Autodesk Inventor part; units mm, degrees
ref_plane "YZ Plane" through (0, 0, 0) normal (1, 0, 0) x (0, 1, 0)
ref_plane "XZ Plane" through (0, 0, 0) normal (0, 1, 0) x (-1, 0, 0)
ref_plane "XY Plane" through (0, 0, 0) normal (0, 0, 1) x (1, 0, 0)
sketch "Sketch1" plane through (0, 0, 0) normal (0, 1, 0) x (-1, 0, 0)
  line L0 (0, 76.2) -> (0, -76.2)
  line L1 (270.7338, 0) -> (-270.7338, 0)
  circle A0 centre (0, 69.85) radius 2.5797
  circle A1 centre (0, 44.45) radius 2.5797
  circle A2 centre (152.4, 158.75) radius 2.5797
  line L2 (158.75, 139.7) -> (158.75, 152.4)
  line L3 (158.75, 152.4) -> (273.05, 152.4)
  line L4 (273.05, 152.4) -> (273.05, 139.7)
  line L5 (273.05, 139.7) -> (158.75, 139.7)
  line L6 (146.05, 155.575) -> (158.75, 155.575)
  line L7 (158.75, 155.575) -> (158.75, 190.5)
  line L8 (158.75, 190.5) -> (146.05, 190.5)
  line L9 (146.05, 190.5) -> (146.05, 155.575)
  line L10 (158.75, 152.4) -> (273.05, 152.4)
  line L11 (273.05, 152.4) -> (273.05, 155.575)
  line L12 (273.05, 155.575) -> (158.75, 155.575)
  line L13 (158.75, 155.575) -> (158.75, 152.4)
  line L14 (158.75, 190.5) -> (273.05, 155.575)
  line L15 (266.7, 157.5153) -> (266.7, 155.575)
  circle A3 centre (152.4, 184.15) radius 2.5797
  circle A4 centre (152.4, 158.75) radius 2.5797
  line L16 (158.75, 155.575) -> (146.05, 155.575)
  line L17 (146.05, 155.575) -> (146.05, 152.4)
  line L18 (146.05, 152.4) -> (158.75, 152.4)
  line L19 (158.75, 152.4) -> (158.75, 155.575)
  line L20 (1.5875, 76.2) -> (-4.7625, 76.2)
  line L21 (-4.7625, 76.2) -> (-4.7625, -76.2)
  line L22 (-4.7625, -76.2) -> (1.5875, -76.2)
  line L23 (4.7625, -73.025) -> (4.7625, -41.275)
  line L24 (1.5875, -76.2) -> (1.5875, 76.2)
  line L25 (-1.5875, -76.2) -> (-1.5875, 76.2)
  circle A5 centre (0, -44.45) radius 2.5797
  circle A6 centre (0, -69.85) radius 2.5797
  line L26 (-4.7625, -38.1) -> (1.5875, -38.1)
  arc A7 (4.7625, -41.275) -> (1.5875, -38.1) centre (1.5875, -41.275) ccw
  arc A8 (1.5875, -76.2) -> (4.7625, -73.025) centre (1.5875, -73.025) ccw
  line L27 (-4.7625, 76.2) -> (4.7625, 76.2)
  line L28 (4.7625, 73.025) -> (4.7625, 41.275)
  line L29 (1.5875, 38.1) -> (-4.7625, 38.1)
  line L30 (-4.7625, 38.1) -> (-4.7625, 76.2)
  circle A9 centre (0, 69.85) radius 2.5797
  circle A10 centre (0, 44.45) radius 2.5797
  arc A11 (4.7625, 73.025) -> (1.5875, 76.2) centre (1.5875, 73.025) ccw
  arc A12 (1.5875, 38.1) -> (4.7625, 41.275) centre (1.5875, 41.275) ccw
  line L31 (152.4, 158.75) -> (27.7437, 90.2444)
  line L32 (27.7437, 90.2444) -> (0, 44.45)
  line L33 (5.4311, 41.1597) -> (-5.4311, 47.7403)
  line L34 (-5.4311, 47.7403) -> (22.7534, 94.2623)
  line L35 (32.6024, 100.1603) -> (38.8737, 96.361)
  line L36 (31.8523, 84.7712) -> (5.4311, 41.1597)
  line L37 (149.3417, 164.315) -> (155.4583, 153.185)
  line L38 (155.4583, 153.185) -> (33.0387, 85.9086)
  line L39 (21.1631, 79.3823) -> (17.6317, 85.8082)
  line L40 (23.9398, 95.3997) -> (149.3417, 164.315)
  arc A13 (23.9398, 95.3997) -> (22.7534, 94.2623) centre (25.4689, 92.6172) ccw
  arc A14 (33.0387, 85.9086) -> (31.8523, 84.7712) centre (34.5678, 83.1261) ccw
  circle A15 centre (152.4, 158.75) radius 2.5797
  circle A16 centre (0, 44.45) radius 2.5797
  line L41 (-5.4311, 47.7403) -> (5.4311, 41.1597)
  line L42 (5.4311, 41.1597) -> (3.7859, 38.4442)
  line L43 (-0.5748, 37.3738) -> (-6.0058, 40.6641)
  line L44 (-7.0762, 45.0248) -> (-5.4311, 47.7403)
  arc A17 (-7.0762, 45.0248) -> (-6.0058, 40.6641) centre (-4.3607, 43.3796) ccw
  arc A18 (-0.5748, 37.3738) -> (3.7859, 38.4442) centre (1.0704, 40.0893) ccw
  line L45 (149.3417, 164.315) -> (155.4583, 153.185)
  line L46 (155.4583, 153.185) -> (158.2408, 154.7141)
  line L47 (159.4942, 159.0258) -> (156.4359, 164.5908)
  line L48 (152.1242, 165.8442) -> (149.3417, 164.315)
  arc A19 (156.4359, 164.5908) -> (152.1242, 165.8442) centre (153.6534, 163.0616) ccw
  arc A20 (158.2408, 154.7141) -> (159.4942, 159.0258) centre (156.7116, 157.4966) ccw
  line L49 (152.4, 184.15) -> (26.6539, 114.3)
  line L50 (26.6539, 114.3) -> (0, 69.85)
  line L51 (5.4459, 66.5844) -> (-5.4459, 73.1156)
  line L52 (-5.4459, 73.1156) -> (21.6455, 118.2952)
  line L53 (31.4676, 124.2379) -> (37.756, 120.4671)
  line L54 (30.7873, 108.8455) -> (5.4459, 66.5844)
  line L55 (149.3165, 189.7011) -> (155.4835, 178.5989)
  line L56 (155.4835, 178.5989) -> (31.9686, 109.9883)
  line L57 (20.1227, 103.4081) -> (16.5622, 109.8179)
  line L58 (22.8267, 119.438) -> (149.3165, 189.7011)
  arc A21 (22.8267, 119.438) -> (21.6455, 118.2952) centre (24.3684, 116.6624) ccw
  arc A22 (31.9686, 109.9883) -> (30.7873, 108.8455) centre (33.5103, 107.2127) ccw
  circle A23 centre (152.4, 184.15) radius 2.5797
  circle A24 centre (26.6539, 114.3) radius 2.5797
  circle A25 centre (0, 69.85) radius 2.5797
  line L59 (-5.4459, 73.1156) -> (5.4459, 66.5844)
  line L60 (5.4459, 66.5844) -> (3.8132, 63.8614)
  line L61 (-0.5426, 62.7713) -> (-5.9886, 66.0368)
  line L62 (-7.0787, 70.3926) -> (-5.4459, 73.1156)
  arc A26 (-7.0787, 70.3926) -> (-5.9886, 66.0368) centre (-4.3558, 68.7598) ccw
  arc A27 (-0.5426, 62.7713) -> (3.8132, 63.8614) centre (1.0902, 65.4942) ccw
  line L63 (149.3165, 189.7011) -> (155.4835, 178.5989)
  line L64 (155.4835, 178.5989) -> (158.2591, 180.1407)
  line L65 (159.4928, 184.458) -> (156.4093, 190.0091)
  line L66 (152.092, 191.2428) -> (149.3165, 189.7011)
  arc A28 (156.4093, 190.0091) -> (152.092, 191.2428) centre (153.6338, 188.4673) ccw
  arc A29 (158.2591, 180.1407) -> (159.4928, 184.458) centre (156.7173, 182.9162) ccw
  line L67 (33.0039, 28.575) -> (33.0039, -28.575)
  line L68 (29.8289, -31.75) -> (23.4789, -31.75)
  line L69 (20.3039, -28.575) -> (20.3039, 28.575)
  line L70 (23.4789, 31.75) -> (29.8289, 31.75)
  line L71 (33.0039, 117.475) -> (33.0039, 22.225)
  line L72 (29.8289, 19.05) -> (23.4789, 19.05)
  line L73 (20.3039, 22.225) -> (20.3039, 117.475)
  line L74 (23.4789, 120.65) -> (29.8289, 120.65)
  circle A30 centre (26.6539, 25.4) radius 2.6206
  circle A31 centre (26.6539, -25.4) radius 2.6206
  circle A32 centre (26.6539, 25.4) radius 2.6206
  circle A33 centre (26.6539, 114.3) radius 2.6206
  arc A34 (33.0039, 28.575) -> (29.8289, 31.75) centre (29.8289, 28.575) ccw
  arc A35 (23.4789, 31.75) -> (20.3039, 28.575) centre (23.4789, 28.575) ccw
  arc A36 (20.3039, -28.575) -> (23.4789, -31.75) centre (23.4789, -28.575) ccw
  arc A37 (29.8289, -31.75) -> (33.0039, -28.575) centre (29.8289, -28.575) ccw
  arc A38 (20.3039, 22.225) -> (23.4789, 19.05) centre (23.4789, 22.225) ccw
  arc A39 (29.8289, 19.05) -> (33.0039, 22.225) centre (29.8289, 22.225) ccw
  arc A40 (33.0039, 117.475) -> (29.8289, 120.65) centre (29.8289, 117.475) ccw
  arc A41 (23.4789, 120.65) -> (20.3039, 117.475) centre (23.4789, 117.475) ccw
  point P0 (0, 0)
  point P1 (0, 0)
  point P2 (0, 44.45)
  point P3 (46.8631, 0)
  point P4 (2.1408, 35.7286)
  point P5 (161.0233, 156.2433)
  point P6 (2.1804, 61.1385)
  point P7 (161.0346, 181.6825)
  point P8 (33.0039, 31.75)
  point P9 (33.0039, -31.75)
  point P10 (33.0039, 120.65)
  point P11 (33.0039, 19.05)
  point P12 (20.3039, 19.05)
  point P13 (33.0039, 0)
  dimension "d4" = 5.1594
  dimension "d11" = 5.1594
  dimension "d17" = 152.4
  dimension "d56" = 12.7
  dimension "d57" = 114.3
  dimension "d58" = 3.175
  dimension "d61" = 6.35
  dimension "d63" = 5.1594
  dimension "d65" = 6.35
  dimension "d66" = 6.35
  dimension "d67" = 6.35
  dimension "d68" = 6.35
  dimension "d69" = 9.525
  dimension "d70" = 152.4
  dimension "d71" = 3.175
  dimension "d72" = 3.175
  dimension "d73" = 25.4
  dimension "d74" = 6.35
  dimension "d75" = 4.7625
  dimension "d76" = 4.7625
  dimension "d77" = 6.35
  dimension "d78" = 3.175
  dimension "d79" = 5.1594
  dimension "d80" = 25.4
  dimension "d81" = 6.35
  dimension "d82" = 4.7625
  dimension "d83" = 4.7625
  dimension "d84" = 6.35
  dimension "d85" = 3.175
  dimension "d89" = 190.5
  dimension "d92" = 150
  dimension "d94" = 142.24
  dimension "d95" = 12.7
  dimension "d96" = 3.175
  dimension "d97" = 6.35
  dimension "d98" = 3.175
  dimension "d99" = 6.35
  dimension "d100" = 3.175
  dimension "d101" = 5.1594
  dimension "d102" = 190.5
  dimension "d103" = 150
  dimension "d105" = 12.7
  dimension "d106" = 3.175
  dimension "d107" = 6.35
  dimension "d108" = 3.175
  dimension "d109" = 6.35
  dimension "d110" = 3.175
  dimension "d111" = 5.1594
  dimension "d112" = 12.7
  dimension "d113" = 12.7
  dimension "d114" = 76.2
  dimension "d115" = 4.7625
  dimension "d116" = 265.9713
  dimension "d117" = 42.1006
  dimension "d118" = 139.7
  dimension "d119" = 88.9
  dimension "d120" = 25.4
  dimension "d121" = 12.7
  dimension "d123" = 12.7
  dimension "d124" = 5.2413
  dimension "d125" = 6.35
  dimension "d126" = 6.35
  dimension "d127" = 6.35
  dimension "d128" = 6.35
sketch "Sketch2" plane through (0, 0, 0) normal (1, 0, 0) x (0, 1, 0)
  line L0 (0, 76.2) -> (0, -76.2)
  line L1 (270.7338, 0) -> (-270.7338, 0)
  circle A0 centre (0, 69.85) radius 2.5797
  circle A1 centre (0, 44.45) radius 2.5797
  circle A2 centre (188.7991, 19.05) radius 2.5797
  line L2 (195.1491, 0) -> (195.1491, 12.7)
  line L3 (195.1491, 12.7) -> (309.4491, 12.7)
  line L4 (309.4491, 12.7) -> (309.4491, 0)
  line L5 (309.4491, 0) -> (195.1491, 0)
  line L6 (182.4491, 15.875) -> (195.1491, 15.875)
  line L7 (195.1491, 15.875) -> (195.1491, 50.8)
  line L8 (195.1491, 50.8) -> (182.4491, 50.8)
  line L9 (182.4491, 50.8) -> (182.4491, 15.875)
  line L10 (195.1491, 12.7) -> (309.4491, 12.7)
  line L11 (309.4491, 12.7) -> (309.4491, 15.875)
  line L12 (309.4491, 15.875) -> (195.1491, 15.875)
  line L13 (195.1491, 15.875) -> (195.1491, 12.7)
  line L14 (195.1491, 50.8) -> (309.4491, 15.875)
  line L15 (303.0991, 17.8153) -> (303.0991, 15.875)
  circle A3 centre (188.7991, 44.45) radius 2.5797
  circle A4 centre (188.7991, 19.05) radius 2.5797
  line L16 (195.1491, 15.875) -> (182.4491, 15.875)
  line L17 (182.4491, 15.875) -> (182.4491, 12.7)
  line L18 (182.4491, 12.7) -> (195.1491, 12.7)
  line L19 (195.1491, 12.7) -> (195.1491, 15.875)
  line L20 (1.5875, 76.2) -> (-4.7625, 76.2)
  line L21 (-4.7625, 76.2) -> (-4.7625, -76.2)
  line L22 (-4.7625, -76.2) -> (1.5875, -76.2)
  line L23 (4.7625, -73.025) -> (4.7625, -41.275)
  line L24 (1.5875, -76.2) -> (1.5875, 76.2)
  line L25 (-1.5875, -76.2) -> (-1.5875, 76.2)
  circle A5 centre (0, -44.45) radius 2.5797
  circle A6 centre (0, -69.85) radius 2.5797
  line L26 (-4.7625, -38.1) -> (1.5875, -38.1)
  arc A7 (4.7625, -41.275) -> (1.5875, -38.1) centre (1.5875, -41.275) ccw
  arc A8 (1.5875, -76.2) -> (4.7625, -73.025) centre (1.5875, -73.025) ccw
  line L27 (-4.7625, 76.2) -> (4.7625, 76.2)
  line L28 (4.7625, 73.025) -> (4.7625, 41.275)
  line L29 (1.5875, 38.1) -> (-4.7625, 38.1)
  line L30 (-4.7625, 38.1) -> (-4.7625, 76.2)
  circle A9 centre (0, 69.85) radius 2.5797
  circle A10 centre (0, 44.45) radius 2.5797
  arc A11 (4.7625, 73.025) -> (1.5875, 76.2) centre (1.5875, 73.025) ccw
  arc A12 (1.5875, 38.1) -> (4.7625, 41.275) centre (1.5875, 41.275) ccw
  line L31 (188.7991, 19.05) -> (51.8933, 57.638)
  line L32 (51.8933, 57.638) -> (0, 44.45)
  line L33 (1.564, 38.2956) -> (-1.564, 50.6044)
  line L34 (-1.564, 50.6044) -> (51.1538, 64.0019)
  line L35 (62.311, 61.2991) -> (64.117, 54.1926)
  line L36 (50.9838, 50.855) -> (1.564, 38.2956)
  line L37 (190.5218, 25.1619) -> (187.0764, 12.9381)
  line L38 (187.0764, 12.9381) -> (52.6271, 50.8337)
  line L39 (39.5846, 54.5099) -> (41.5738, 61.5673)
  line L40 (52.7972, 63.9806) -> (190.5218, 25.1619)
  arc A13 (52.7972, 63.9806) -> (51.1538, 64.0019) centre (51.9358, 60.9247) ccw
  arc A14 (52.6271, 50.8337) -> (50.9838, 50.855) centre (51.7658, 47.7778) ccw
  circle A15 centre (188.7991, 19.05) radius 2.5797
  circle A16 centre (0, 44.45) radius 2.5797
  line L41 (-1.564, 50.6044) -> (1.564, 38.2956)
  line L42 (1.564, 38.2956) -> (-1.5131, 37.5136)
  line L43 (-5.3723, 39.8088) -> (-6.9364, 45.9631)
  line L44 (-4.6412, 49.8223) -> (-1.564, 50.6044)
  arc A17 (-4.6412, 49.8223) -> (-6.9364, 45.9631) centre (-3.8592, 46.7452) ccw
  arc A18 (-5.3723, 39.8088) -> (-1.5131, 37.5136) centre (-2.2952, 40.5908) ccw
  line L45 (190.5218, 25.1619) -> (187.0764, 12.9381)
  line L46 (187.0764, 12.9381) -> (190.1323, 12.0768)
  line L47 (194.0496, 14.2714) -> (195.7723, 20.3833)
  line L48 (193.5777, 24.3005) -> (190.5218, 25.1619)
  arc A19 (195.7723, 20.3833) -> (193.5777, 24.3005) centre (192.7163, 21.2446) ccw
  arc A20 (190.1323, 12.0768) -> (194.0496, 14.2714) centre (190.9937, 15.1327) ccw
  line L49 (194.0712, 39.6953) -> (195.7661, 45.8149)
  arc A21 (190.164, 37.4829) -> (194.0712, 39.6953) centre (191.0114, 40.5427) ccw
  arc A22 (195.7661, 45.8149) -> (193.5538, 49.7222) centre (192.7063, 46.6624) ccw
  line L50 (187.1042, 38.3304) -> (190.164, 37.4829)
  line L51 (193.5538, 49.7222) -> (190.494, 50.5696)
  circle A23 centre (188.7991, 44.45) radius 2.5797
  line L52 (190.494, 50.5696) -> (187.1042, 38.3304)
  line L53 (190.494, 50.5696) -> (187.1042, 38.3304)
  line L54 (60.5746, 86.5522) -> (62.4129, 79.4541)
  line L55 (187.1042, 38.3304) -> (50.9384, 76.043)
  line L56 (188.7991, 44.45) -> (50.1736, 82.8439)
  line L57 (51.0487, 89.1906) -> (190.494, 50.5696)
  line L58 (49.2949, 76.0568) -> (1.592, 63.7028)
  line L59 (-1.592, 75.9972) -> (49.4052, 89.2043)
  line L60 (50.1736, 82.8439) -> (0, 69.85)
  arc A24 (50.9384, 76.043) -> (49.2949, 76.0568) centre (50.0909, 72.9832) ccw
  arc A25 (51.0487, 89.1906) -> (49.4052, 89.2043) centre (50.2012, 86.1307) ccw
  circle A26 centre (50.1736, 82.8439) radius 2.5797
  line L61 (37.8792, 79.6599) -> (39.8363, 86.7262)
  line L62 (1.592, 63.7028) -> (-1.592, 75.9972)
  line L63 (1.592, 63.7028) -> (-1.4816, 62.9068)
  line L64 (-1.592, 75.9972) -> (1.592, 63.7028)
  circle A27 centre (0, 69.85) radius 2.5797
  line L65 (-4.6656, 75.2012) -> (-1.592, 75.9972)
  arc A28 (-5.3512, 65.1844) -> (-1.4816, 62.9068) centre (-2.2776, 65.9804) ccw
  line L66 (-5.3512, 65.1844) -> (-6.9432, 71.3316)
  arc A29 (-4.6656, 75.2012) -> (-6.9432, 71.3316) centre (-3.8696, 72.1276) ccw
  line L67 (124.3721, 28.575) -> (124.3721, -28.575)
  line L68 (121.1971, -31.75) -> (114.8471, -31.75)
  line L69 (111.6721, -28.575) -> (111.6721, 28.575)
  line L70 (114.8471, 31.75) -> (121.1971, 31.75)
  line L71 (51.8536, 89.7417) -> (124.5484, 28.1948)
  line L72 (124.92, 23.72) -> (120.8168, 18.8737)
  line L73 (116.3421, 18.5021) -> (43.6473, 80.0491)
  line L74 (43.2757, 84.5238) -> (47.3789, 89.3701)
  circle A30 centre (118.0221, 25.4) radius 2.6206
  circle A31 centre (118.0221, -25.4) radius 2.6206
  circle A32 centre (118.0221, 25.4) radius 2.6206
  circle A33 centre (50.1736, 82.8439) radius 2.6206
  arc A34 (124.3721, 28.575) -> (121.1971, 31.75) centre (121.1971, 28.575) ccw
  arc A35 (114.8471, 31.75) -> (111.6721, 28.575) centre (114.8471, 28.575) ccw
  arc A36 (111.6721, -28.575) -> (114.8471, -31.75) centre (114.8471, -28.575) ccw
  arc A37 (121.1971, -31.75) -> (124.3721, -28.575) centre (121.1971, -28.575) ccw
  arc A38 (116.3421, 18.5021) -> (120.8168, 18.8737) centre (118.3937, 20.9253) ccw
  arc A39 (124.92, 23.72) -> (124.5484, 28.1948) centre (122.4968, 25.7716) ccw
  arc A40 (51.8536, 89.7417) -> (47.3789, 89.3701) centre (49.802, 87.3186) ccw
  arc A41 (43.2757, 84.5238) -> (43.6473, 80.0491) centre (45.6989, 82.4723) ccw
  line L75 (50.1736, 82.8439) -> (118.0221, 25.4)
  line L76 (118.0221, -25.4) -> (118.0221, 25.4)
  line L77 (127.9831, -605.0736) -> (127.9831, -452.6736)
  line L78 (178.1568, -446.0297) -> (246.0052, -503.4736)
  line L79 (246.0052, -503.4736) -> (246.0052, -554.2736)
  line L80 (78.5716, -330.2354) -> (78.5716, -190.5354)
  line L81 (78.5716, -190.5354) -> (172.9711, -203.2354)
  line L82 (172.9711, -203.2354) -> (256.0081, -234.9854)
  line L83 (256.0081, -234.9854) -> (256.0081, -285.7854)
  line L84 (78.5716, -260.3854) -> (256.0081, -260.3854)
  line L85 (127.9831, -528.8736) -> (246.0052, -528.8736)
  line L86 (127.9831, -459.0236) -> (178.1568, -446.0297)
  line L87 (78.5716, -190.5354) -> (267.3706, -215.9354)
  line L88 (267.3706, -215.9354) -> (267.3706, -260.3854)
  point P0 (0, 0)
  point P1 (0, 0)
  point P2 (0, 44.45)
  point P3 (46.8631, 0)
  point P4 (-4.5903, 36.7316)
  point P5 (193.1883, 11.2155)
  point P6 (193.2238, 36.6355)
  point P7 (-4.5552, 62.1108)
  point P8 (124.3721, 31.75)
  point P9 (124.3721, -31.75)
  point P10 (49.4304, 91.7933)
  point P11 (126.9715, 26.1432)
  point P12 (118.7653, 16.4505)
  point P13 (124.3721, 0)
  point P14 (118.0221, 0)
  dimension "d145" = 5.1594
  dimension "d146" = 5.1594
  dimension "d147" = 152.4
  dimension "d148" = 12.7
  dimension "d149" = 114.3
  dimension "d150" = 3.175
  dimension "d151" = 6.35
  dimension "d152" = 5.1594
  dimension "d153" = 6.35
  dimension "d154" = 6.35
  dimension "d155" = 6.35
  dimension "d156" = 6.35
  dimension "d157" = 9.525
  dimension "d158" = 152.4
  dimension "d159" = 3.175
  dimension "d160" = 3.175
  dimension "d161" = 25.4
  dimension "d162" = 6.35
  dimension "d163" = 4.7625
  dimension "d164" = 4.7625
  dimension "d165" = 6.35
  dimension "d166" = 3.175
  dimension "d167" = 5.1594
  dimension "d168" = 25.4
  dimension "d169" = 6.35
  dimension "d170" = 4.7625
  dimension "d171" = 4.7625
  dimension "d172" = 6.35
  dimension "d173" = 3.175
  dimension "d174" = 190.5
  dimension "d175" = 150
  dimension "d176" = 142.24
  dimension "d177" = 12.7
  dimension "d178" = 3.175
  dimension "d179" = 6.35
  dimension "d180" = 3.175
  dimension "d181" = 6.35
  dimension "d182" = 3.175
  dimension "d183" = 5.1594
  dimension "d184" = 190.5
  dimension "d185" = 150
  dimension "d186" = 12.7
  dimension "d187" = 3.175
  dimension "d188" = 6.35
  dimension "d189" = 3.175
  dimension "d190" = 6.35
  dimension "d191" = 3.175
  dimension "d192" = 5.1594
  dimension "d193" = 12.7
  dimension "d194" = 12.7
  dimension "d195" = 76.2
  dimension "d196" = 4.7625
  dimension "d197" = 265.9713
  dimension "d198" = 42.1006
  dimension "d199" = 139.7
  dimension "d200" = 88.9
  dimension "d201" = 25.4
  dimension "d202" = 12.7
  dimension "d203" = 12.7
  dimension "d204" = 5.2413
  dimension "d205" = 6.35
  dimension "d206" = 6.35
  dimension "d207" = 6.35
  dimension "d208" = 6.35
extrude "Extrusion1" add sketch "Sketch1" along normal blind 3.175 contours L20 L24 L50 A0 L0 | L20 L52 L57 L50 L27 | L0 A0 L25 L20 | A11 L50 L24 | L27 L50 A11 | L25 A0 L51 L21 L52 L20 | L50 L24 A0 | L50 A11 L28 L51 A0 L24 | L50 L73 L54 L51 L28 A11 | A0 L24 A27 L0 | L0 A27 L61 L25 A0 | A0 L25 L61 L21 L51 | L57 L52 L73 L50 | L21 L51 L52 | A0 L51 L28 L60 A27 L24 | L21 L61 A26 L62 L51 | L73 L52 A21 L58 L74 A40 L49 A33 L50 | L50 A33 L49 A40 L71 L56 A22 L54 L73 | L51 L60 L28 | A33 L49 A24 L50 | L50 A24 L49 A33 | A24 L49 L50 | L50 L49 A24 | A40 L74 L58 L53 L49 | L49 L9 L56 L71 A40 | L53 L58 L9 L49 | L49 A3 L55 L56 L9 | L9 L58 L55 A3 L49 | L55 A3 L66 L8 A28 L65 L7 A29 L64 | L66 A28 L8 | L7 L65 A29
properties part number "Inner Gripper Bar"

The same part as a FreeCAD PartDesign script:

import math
import FreeCAD as App
import Part
import Sketcher
Q = App.Units.Quantity

doc = App.newDocument("Part")
body = doc.addObject("PartDesign::Body", "Body")

sketch1 = body.newObject("Sketcher::SketchObject", "Sketch")
sketch1.AttachmentSupport = (doc.getObject("XZ_Plane"), [""])
sketch1.MapMode = "FlatFace"
sketch1.addGeometry([
    Part.LineSegment(App.Vector(5.4459, 73.1156, 0), App.Vector(7.0787, 70.3926, 0)),
    Part.ArcOfCircle(Part.Circle(App.Vector(4.3558, 68.7598, 0), App.Vector(0, 0, 1), 3.174936), math.radians(-59.051718), math.radians(30.94921)),
    Part.LineSegment(App.Vector(5.9886, 66.0368, 0), App.Vector(0.5426, 62.7713, 0)),
    Part.ArcOfCircle(Part.Circle(App.Vector(-1.0902, 65.4942, 0), App.Vector(0, 0, 1), 3.174936), math.radians(-149.051718), math.radians(-59.05079)),
    Part.LineSegment(App.Vector(-3.8132, 63.8614, 0), App.Vector(-5.4459, 66.5844, 0)),
    Part.LineSegment(App.Vector(-5.4459, 66.5844, 0), App.Vector(-30.7873, 108.8455, 0)),
    Part.ArcOfCircle(Part.Circle(App.Vector(-33.5103, 107.2127, 0), App.Vector(0, 0, 1), 3.175027), math.radians(30.948282), math.radians(60.950128)),
    Part.LineSegment(App.Vector(-31.9686, 109.9883, 0), App.Vector(-155.4835, 178.5989, 0)),
    Part.LineSegment(App.Vector(-155.4835, 178.5989, 0), App.Vector(-158.2591, 180.1407, 0)),
    Part.ArcOfCircle(Part.Circle(App.Vector(-156.7173, 182.9162, 0), App.Vector(0, 0, 1), 3.174988), math.radians(150.947675), math.radians(240.947675)),
    Part.LineSegment(App.Vector(-159.4928, 184.458, 0), App.Vector(-156.4093, 190.0091, 0)),
    Part.ArcOfCircle(Part.Circle(App.Vector(-153.6338, 188.4673, 0), App.Vector(0, 0, 1), 3.174988), math.radians(60.947675), math.radians(150.947675)),
    Part.LineSegment(App.Vector(-152.092, 191.2428, 0), App.Vector(-149.3165, 189.7011, 0)),
    Part.LineSegment(App.Vector(-149.3165, 189.7011, 0), App.Vector(-22.8267, 119.438, 0)),
    Part.ArcOfCircle(Part.Circle(App.Vector(-24.367604, 116.663474, 0), App.Vector(0, 0, 1), 3.173701), math.radians(30.939971), math.radians(60.95328)),
    Part.LineSegment(App.Vector(-21.6455, 118.2952, 0), App.Vector(5.4459, 73.1156, 0)),
    Part.Circle(App.Vector(0, 69.85, 0), App.Vector(0, 0, 1), 2.5797),
    Part.Circle(App.Vector(-152.4, 184.15, 0), App.Vector(0, 0, 1), 2.5797),
], False)
sketch1.addConstraint([
    Sketcher.Constraint("Coincident", 0, 2, 1, 2),
    Sketcher.Constraint("Coincident", 1, 1, 2, 1),
    Sketcher.Constraint("Coincident", 2, 2, 3, 2),
    Sketcher.Constraint("Coincident", 3, 1, 4, 1),
    Sketcher.Constraint("Coincident", 4, 2, 5, 1),
    Sketcher.Constraint("Coincident", 5, 2, 6, 1),
    Sketcher.Constraint("Coincident", 6, 2, 7, 1),
    Sketcher.Constraint("Coincident", 7, 2, 8, 1),
    Sketcher.Constraint("Coincident", 8, 2, 9, 2),
    Sketcher.Constraint("Coincident", 9, 1, 10, 1),
    Sketcher.Constraint("Coincident", 10, 2, 11, 2),
    Sketcher.Constraint("Coincident", 11, 1, 12, 1),
    Sketcher.Constraint("Coincident", 12, 2, 13, 1),
    Sketcher.Constraint("Coincident", 13, 2, 14, 2),
    Sketcher.Constraint("Coincident", 14, 1, 15, 1),
    Sketcher.Constraint("Coincident", 15, 2, 0, 1),
    Sketcher.Constraint("PointOnObject", 16, 3, -2),
    Sketcher.Constraint("Diameter", 16, Q("0.203126 in")),
    Sketcher.Constraint("Diameter", 17, Q("0.203126 in")),
    Sketcher.Constraint("DistanceX", 17, 3, -1, 1, Q("6 in")),
    Sketcher.Constraint("Radius", 1, Q("0.125 in")),
    Sketcher.Constraint("Radius", 3, Q("0.125 in")),
    Sketcher.Constraint("Radius", 6, Q("0.125 in")),
    Sketcher.Constraint("Radius", 9, Q("0.125 in")),
    Sketcher.Constraint("Radius", 11, Q("0.125 in")),
    Sketcher.Constraint("DistanceY", 16, 3, 17, 3, Q("4.5 in")),
    Sketcher.Constraint("Distance", 2, Q("0.25 in")),
    Sketcher.Constraint("Distance", 10, Q("0.25 in")),
    Sketcher.Constraint("Distance", 0, Q("0.125 in")),
    Sketcher.Constraint("Distance", 4, Q("0.125 in")),
    Sketcher.Constraint("Distance", 8, Q("0.125 in")),
    Sketcher.Constraint("Distance", 12, Q("0.125 in")),
    Sketcher.Constraint("DistanceY", -1, 1, 16, 3, Q("2.75 in")),
    Sketcher.Constraint("Radius", 14, 3.1737),
    Sketcher.Constraint("Distance", 15, Q("2.074 in")),
    Sketcher.Constraint("DistanceY", 6, 3, 11, 3, Q("3.199 in")),
    Sketcher.Constraint("DistanceX", 6, 3, 0, 2, Q("1.598 in")),
    Sketcher.Constraint("DistanceY", 5, 2, 6, 2, Q("0.045 in")),
    Sketcher.Constraint("DistanceY", 14, 1, 13, 2, Q("0.045 in")),
    Sketcher.Constraint("DistanceX", -1, 1, 1, 3, Q("0.1715 in")),
    Sketcher.Constraint("DistanceY", -1, 1, 3, 3, Q("2.5785 in")),
    Sketcher.Constraint("DistanceX", 6, 3, -1, 1, Q("1.3193 in")),
    Sketcher.Constraint("DistanceY", -1, 1, 2, 2, Q("2.4713 in")),
    Sketcher.Constraint("DistanceX", 4, 2, -1, 1, Q("0.2144 in")),
    Sketcher.Constraint("DistanceX", 5, 2, -1, 1, Q("1.2121 in")),
    Sketcher.Constraint("DistanceX", 7, 2, -1, 1, Q("6.1214 in")),
    Sketcher.Constraint("DistanceX", 12, 2, -1, 1, Q("5.8786 in")),
    Sketcher.Constraint("DistanceX", 13, 2, -1, 1, Q("0.8987 in")),
    Sketcher.Constraint("DistanceY", -1, 1, 14, 1, Q("4.6573 in")),
    Sketcher.Constraint("DistanceX", -1, 1, 15, 2, Q("0.2144 in")),
    Sketcher.Constraint("DistanceX", 3, 3, 1, 3, Q("0.2144 in")),
    Sketcher.Constraint("DistanceY", 1, 3, 6, 3, Q("1.5139 in")),
    Sketcher.Constraint("DistanceX", 9, 3, 11, 3, Q("0.1214 in")),
    Sketcher.Constraint("DistanceY", 1, 1, 1, 3, Q("0.1072 in")),
    Sketcher.Constraint("DistanceX", 3, 1, 3, 3, Q("0.1072 in")),
    Sketcher.Constraint("DistanceY", 6, 2, 7, 2, Q("2.7012 in")),
    Sketcher.Constraint("DistanceX", 8, 2, 9, 3, Q("0.0607 in")),
    Sketcher.Constraint("DistanceY", 7, 2, 8, 2, Q("0.0607 in")),
    Sketcher.Constraint("DistanceY", 9, 3, 9, 1, Q("0.0607 in")),
    Sketcher.Constraint("DistanceX", 11, 3, 11, 1, Q("0.0607 in")),
])
pad1 = body.newObject("PartDesign::Pad", "Pad")
pad1.Profile = sketch1
pad1.Length = Q("0.125 in")
pad1.Reversed = True

doc.recompute()
